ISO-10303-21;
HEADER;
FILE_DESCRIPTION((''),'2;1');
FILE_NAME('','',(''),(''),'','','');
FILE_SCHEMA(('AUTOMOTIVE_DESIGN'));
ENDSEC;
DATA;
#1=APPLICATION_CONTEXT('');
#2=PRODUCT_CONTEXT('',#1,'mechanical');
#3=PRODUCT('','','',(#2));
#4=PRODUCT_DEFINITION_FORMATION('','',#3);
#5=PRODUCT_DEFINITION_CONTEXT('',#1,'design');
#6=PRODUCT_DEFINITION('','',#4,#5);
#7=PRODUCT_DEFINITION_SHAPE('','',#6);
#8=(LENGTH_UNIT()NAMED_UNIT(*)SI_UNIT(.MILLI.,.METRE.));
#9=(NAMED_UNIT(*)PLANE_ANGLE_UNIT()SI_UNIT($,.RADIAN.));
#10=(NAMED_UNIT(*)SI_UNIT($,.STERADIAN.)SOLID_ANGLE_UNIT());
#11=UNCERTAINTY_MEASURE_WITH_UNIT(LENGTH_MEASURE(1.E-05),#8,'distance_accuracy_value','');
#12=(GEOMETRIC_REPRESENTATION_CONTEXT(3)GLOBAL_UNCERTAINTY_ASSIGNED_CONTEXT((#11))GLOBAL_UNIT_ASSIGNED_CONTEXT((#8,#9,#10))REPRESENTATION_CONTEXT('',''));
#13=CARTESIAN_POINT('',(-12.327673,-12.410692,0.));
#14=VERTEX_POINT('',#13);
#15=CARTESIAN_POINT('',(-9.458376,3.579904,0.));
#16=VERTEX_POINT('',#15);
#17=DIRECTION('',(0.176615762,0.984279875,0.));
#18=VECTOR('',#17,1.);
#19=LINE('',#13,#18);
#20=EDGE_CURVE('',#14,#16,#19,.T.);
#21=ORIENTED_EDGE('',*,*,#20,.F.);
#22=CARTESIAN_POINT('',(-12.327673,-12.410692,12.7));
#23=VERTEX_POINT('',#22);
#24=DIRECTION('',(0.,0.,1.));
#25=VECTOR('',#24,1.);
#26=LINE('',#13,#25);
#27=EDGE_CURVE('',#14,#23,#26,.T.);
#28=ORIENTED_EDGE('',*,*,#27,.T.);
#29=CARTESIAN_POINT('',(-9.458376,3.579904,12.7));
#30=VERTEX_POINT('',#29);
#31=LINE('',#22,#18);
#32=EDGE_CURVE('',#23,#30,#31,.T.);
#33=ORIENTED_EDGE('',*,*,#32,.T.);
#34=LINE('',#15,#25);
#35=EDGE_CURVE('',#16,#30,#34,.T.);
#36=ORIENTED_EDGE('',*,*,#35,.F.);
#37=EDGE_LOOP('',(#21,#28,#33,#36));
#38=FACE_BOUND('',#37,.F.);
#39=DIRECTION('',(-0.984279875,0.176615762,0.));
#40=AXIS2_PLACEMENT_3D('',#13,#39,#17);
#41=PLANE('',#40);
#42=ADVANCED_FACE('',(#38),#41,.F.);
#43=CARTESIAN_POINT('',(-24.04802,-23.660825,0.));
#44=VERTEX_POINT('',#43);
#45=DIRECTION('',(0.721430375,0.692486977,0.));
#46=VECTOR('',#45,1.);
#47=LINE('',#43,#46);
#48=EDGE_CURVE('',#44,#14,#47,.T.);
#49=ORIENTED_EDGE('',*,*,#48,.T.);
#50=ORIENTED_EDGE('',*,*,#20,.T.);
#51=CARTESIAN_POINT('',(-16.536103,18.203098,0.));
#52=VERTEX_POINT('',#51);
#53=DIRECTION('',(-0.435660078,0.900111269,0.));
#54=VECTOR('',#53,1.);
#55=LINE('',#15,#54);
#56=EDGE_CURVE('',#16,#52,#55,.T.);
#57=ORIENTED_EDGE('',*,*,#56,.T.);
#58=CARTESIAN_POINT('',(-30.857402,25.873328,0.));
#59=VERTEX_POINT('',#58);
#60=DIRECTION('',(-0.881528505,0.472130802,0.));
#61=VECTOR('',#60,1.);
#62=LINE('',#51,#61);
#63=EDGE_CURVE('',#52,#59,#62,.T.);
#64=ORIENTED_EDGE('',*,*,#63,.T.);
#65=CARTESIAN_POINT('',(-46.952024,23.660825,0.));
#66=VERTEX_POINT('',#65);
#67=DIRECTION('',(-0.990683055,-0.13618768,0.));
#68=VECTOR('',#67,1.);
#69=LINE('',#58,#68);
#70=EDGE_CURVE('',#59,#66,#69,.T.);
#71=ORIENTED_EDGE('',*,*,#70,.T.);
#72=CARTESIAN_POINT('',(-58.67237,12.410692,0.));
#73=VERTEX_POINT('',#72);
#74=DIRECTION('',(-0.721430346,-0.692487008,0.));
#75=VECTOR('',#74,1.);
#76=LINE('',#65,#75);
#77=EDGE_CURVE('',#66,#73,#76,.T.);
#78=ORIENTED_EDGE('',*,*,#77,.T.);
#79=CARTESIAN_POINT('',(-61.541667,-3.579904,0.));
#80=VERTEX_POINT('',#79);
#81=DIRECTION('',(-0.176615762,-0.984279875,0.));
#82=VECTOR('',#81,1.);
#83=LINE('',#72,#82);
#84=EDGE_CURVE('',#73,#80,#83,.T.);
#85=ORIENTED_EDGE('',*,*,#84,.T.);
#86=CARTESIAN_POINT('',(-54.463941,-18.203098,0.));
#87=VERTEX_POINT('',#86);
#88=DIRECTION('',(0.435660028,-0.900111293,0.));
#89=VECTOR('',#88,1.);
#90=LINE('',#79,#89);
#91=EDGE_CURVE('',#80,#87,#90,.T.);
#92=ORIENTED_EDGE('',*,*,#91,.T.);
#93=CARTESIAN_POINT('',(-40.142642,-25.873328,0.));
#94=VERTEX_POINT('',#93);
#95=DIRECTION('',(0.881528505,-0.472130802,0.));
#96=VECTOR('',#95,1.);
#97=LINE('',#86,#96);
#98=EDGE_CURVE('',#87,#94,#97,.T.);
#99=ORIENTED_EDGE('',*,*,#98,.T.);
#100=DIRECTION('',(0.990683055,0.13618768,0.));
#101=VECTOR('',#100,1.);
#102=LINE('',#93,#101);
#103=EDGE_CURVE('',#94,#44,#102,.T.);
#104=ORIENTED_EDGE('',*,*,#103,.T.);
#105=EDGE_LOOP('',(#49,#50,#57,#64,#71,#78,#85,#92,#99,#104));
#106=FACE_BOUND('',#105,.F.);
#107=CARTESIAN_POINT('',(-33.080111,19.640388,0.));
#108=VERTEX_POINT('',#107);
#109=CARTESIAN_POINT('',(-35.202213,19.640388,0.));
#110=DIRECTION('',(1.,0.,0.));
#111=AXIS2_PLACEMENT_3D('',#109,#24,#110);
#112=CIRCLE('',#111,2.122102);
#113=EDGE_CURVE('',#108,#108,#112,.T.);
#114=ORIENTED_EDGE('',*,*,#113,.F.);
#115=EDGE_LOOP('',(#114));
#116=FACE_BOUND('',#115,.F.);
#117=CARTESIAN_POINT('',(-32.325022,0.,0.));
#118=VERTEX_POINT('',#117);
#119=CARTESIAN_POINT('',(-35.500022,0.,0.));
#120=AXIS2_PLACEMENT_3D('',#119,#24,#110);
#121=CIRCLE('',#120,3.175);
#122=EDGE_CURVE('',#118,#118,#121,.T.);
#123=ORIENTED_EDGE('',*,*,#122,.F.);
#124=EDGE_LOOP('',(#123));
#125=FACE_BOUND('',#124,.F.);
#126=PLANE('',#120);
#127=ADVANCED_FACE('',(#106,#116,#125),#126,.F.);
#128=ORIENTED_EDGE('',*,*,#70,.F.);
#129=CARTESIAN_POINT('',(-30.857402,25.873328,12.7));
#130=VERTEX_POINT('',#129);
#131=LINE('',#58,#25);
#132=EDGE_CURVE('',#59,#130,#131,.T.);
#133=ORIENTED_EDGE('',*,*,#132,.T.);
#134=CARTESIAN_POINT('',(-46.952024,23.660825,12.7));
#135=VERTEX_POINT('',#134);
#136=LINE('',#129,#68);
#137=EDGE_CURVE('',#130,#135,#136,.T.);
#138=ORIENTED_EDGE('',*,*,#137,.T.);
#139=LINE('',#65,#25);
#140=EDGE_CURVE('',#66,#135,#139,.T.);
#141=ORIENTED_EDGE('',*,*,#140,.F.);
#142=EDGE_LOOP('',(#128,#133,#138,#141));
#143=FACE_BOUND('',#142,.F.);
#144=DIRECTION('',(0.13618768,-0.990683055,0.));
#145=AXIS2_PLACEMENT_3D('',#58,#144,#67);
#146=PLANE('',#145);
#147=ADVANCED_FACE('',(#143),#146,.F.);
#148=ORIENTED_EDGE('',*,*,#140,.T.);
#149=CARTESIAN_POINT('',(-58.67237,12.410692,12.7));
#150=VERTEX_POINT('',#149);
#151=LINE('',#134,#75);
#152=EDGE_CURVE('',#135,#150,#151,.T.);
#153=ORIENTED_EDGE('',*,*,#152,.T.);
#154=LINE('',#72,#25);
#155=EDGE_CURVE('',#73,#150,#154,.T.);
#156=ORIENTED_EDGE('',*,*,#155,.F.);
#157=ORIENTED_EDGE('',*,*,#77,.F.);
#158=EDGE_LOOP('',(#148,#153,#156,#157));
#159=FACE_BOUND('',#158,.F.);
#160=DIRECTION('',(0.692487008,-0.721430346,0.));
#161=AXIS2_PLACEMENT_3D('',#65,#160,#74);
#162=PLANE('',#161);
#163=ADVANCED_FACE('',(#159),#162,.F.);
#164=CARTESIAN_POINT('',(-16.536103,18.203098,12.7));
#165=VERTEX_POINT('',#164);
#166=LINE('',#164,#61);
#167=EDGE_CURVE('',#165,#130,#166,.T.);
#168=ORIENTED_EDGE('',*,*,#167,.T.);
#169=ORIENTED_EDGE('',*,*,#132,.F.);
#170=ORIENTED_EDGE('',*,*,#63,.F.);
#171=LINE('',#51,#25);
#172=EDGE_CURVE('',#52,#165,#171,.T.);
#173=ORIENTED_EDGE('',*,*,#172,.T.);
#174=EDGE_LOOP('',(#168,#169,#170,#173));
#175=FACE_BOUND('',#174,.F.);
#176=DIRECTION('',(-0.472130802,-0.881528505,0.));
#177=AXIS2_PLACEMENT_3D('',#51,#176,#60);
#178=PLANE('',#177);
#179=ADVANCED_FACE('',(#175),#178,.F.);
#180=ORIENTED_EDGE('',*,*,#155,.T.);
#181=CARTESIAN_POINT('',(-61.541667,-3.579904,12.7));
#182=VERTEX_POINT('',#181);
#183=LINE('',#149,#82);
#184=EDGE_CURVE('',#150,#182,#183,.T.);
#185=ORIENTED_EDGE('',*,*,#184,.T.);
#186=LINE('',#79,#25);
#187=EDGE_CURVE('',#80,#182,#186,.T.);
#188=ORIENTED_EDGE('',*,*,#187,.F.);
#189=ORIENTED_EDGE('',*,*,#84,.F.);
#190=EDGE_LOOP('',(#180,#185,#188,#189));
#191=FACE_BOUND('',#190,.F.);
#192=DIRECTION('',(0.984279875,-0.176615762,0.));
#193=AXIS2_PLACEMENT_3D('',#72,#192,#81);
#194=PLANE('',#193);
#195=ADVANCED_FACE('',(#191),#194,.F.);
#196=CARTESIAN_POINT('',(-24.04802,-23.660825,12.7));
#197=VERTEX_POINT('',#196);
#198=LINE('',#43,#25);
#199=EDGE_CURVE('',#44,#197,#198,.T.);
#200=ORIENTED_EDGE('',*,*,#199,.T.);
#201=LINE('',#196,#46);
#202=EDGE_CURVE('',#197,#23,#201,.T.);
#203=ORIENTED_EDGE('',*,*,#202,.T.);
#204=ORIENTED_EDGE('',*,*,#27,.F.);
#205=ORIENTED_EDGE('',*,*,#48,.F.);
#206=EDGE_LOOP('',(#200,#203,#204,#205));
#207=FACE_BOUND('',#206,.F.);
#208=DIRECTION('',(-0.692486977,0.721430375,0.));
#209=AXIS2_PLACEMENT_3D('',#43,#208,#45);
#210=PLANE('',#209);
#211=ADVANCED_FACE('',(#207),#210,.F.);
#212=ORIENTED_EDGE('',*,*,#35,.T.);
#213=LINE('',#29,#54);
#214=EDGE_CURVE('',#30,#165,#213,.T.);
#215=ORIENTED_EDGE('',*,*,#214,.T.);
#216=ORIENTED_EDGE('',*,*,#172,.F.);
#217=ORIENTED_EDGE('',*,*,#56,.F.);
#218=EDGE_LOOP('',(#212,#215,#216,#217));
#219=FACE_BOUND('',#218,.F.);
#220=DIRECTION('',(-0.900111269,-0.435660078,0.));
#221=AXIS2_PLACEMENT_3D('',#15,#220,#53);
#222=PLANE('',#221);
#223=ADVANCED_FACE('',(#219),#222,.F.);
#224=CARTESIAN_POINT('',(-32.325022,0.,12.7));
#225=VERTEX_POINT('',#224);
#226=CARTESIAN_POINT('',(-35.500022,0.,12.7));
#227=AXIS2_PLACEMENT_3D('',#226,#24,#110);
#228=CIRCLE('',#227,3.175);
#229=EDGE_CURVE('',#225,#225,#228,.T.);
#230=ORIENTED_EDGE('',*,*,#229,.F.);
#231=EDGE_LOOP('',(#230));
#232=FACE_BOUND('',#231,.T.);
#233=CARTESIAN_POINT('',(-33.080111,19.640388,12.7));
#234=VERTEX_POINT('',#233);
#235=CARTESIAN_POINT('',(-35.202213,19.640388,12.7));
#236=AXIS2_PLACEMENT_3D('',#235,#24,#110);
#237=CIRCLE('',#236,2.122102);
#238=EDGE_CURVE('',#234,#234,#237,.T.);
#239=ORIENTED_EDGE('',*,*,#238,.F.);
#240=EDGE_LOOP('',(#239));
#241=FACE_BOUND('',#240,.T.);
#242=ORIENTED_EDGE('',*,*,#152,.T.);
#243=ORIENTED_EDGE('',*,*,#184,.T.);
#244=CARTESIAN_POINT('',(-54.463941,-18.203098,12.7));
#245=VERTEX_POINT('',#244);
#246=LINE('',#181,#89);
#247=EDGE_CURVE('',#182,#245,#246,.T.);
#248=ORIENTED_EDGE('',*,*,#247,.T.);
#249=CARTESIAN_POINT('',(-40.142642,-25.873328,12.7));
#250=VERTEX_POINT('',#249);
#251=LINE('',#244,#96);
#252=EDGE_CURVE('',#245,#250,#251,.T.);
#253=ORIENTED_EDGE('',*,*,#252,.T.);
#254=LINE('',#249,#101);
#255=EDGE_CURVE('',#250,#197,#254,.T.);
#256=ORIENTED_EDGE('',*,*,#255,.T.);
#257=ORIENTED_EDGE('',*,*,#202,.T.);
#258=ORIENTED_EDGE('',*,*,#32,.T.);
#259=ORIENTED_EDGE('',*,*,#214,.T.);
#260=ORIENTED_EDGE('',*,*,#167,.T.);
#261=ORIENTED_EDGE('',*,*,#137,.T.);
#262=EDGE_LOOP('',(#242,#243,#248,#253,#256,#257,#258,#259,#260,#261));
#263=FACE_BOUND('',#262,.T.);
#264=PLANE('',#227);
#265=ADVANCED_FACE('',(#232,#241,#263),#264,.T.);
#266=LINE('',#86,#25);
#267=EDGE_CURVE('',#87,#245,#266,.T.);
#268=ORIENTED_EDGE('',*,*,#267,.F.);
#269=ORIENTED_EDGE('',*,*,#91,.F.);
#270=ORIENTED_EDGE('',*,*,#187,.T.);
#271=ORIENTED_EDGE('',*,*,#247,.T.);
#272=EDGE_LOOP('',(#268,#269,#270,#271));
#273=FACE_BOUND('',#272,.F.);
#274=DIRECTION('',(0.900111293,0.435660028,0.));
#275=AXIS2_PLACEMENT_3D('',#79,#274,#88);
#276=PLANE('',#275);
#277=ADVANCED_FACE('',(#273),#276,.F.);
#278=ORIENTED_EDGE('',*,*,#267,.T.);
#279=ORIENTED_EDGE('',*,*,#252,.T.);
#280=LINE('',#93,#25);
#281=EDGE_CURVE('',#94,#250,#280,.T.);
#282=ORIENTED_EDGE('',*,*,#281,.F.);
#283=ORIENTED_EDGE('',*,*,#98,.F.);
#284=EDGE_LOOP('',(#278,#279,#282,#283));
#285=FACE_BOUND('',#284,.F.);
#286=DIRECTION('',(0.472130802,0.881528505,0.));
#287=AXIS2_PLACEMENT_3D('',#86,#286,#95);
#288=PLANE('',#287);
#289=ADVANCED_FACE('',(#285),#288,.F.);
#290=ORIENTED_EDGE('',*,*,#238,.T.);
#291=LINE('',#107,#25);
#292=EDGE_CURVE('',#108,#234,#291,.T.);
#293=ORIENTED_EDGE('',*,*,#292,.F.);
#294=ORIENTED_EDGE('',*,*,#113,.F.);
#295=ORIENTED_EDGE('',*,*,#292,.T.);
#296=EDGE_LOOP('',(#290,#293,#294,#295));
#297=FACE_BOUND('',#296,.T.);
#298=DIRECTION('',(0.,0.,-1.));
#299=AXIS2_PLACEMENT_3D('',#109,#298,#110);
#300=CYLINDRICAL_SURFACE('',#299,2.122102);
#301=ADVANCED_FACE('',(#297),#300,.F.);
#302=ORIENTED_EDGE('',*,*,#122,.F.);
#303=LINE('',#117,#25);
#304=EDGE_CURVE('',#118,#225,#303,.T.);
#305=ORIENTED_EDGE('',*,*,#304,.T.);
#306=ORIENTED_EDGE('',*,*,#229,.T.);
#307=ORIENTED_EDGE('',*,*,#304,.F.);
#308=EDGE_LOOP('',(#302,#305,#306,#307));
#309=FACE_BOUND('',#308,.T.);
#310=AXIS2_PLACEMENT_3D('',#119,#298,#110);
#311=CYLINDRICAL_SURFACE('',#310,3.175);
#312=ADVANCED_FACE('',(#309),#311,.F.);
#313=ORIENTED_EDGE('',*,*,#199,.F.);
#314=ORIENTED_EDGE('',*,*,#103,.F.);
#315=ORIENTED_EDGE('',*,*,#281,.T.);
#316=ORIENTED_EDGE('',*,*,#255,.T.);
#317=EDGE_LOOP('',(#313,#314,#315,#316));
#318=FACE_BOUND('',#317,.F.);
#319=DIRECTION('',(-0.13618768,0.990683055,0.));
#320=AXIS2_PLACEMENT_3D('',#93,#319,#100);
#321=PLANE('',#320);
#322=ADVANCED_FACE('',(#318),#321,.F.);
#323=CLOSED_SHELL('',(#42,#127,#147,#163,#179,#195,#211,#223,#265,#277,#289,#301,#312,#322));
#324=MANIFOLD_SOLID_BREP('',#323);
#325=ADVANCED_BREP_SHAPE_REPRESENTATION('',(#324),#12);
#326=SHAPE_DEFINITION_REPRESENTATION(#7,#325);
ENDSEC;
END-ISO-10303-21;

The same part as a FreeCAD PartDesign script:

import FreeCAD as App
import Part
import Sketcher

V = App.Vector
Q = App.Units.Quantity

doc = App.newDocument("Part")
params = doc.addObject("Spreadsheet::Sheet", "Params")
for row, (alias, value) in enumerate([
    ("sketch1_diameter", "0.25 in"),
    ("pad1_length", "0.5 in"),
], start=1):
    params.set(f"A{row}", alias)
    params.set(f"B{row}", "=" + value)
    params.setAlias(f"B{row}", alias)

body = doc.addObject("PartDesign::Body", "Body")

# Sketch on XY plane
sketch1 = doc.addObject("Sketcher::SketchObject", "Sketch")
body.addObject(sketch1)
sketch1.AttachmentSupport = (doc.XY_Plane, [""])
sketch1.MapMode = "FlatFace"
sketch1.addGeometry(Part.LineSegment(V(-9.5, 3.6, 0), V(-16.5, 18.2, 0)), False)
sketch1.addGeometry(Part.LineSegment(V(-16.5, 18.2, 0), V(-30.9, 25.9, 0)), False)
sketch1.addGeometry(Part.LineSegment(V(-30.9, 25.9, 0), V(-47, 23.7, 0)), False)
sketch1.addGeometry(Part.LineSegment(V(-47, 23.7, 0), V(-58.7, 12.4, 0)), False)
sketch1.addGeometry(Part.LineSegment(V(-58.7, 12.4, 0), V(-61.5, -3.6, 0)), False)
sketch1.addGeometry(Part.LineSegment(V(-61.5, -3.6, 0), V(-54.5, -18.2, 0)), False)
sketch1.addGeometry(Part.LineSegment(V(-54.5, -18.2, 0), V(-40.1, -25.9, 0)), False)
sketch1.addGeometry(Part.LineSegment(V(-40.1, -25.9, 0), V(-24, -23.7, 0)), False)
sketch1.addGeometry(Part.LineSegment(V(-24, -23.7, 0), V(-12.3, -12.4, 0)), False)
sketch1.addGeometry(Part.LineSegment(V(-12.3, -12.4, 0), V(-9.5, 3.6, 0)), False)
sketch1.addGeometry(Part.Circle(V(-35.5, 0, 0), V(0, 0, 1), 3.2), False)
sketch1.addGeometry(Part.Circle(V(-35.2, 19.6, 0), V(0, 0, 1), 2.1), False)
sketch1.addConstraint(Sketcher.Constraint("Coincident", 0, 2, 1, 1))
sketch1.addConstraint(Sketcher.Constraint("Coincident", 1, 2, 2, 1))
sketch1.addConstraint(Sketcher.Constraint("Coincident", 2, 2, 3, 1))
sketch1.addConstraint(Sketcher.Constraint("Coincident", 3, 2, 4, 1))
sketch1.addConstraint(Sketcher.Constraint("Coincident", 4, 2, 5, 1))
sketch1.addConstraint(Sketcher.Constraint("Coincident", 5, 2, 6, 1))
sketch1.addConstraint(Sketcher.Constraint("Coincident", 6, 2, 7, 1))
sketch1.addConstraint(Sketcher.Constraint("Coincident", 7, 2, 8, 1))
sketch1.addConstraint(Sketcher.Constraint("Coincident", 8, 2, 9, 1))
sketch1.addConstraint(Sketcher.Constraint("Coincident", 9, 2, 0, 1))
sketch1.addConstraint(Sketcher.Constraint("PointOnObject", 10, 3, -1))
sketch1.addConstraint(Sketcher.Constraint("Parallel", 0, 5))
sketch1.addConstraint(Sketcher.Constraint("Parallel", 1, 6))
sketch1.addConstraint(Sketcher.Constraint("Parallel", 2, 7))
sketch1.addConstraint(Sketcher.Constraint("Parallel", 3, 8))
sketch1.addConstraint(Sketcher.Constraint("Parallel", 4, 9))
sketch1.addConstraint(Sketcher.Constraint("Equal", 0, 1))
sketch1.addConstraint(Sketcher.Constraint("Equal", 1, 2))
sketch1.addConstraint(Sketcher.Constraint("Equal", 2, 3))
sketch1.addConstraint(Sketcher.Constraint("Equal", 3, 4))
sketch1.addConstraint(Sketcher.Constraint("Equal", 4, 5))
sketch1.addConstraint(Sketcher.Constraint("Equal", 5, 6))
sketch1.addConstraint(Sketcher.Constraint("Equal", 6, 7))
sketch1.addConstraint(Sketcher.Constraint("Diameter", 10, Q("0.25 in")))
sketch1.addConstraint(Sketcher.Constraint("Diameter", 11, 4.244204))
sketch1.addConstraint(Sketcher.Constraint("DistanceY", -1, 1, 0, 2, 18.203098))
sketch1.addConstraint(Sketcher.Constraint("DistanceY", 5, 2, -1, 1, 18.203098))
sketch1.addConstraint(Sketcher.Constraint("DistanceX", 1, 2, 0, 2, 14.321299))
sketch1.addConstraint(Sketcher.Constraint("DistanceY", -1, 1, 11, 3, 19.640388))
sketch1.addConstraint(Sketcher.Constraint("DistanceY", -1, 1, 1, 2, 25.873328))
sketch1.addConstraint(Sketcher.Constraint("DistanceX", 3, 2, -1, 1, 58.67237))
sketch1.addConstraint(Sketcher.Constraint("DistanceY", -1, 1, 3, 2, 12.410692))
sketch1.addConstraint(Sketcher.Constraint("DistanceX", 5, 2, -1, 1, 54.463941))
sketch1.addConstraint(Sketcher.Constraint("DistanceX", 7, 2, -1, 1, 24.04802))
sketch1.addConstraint(Sketcher.Constraint("DistanceX", 10, 3, 11, 3, 0.297809))
sketch1.addConstraint(Sketcher.Constraint("DistanceX", 11, 3, 0, 2, 18.66611))
sketch1.setExpression("Constraints[23]", "Params.sketch1_diameter")
pad1 = doc.addObject("PartDesign::Pad", "Pad")
body.addObject(pad1)
pad1.Profile = sketch1
pad1.setExpression("Length", "Params.pad1_length")

doc.recompute()
